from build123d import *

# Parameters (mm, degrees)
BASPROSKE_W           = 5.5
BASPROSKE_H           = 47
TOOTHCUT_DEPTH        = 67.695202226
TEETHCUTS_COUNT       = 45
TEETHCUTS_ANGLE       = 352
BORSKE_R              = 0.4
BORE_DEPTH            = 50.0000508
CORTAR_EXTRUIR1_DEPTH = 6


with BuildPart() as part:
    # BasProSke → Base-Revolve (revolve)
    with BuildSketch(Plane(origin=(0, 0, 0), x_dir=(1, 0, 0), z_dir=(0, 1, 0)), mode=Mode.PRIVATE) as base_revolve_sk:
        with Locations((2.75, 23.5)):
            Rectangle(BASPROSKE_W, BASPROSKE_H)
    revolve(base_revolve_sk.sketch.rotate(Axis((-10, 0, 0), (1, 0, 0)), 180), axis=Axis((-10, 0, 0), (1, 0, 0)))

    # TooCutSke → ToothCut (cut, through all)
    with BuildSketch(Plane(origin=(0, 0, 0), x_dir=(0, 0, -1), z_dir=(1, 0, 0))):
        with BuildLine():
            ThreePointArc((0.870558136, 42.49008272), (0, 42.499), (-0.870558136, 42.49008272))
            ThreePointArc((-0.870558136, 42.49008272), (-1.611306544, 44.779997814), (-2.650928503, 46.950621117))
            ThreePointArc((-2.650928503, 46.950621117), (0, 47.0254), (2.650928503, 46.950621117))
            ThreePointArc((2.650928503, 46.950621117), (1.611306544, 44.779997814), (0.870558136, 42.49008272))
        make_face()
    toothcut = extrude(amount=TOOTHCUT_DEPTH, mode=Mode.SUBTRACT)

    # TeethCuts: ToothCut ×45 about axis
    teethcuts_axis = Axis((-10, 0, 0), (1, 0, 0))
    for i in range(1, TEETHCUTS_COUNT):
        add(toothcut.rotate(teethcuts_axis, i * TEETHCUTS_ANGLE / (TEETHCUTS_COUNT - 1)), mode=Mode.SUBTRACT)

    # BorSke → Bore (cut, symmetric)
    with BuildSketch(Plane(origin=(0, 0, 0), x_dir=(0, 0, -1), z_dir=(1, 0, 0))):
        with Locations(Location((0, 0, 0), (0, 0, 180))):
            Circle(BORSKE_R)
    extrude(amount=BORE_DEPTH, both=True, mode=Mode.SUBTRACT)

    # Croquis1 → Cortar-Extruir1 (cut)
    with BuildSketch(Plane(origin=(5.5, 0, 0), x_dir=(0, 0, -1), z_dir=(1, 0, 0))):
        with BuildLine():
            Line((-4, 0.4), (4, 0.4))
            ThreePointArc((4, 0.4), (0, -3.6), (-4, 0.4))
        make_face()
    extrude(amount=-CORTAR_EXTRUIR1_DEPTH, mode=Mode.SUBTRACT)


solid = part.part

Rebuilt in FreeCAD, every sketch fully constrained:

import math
import FreeCAD as App
import Part
import Sketcher

V = App.Vector
Q = App.Units.Quantity


def add_polygon(sketch, points):
    """Adds a closed chain of lines whose ends are joined by coincident constraints."""
    first, n = sketch.GeometryCount, len(points)
    for a, b in zip(points, points[1:] + points[:1]):
        sketch.addGeometry(Part.LineSegment(App.Vector(*a, 0), App.Vector(*b, 0)), False)
    for i in range(n):
        sketch.addConstraint(Sketcher.Constraint("Coincident", first + i, 2, first + (i + 1) % n, 1))

doc = App.newDocument("Part")
body = doc.addObject("PartDesign::Body", "Body")

# Sketch on XZ plane
sketch1 = body.newObject("Sketcher::SketchObject", "Sketch")
sketch1.AttachmentSupport = (doc.getObject("XZ_Plane"), [""])
sketch1.MapMode = "FlatFace"
add_polygon(sketch1, [(0, -47), (0, 0), (5.5, 0), (5.5, -47)])  # lines 0-3
sketch1.addConstraint(Sketcher.Constraint("Vertical", 0))
sketch1.addConstraint(Sketcher.Constraint("Horizontal", 1))
sketch1.addConstraint(Sketcher.Constraint("Vertical", 2))
sketch1.addConstraint(Sketcher.Constraint("Horizontal", 3))
sketch1.addConstraint(Sketcher.Constraint("Coincident", 0, 2, -1, 1))
sketch1.addConstraint(Sketcher.Constraint("DistanceY", 0, 1, 0, 2, Q("47 mm")))
sketch1.addConstraint(Sketcher.Constraint("DistanceX", 1, 1, 1, 2, Q("5.5 mm")))
revolution = body.newObject("PartDesign::Revolution", "Revolution")
revolution.Profile = sketch1
revolution.ReferenceAxis = (sketch1, ["H_Axis"])
revolution.Angle = 360

# Sketch on YZ plane
sketch2 = body.newObject("Sketcher::SketchObject", "Sketch001")
sketch2.AttachmentSupport = (doc.getObject("YZ_Plane"), [""])
sketch2.MapMode = "FlatFace"
sketch2.addGeometry(Part.ArcOfCircle(Part.Circle(V(-0.000001, 0, 0), V(0, 0, 1), 42.499001), math.radians(-1.17374), math.radians(1.17374)), False)
sketch2.addGeometry(Part.ArcOfCircle(Part.Circle(V(38.10739, -18.328852, 0), V(0, 0, 1), 18), math.radians(60.574556), math.radians(75.907804)), False)
sketch2.addGeometry(Part.ArcOfCircle(Part.Circle(V(0, 0, 0), V(0, 0, 1), 47.0254), math.radians(-3.231606), math.radians(3.231606)), False)
sketch2.addGeometry(Part.ArcOfCircle(Part.Circle(V(38.10739, 18.328852, 0), V(0, 0, 1), 18), math.radians(-75.907804), math.radians(-60.574556)), False)
sketch2.addConstraint(Sketcher.Constraint("Coincident", 0, 1, 1, 2))
sketch2.addConstraint(Sketcher.Constraint("Coincident", 1, 1, 2, 1))
sketch2.addConstraint(Sketcher.Constraint("Coincident", 2, 2, 3, 2))
sketch2.addConstraint(Sketcher.Constraint("Coincident", 3, 1, 0, 2))
sketch2.addConstraint(Sketcher.Constraint("Coincident", 0, 3, -1, 1))
sketch2.addConstraint(Sketcher.Constraint("Coincident", 2, 3, -1, 1))
sketch2.addConstraint(Sketcher.Constraint("Equal", 1, 3))
sketch2.addConstraint(Sketcher.Constraint("Symmetric", 1, 3, 3, 3, -1))
sketch2.addConstraint(Sketcher.Constraint("Radius", 1, Q("18 mm")))
sketch2.addConstraint(Sketcher.Constraint("Radius", 0, Q("42.499001 mm")))
sketch2.addConstraint(Sketcher.Constraint("Radius", 2, Q("47.0254 mm")))
sketch2.addConstraint(Sketcher.Constraint("DistanceX", -1, 1, 1, 3, Q("38.10739 mm")))
sketch2.addConstraint(Sketcher.Constraint("DistanceY", 1, 3, -1, 1, Q("18.328852 mm")))
pocket1 = body.newObject("PartDesign::Pocket", "Pocket")
pocket1.Profile = sketch2
pocket1.Type = "ThroughAll"
pocket1.Reversed = True
doc.recompute()

polarpattern = body.newObject("PartDesign::PolarPattern", "PolarPattern")
polarpattern.Originals = [pocket1]
polarpattern.Axis = (doc.getObject("X_Axis"), [""])
polarpattern.Angle = 360
polarpattern.Occurrences = 45
body.Tip = polarpattern

# Sketch on YZ plane
sketch3 = body.newObject("Sketcher::SketchObject", "Sketch002")
sketch3.AttachmentSupport = (doc.getObject("YZ_Plane"), [""])
sketch3.MapMode = "FlatFace"
sketch3.addGeometry(Part.Circle(V(0, 0, 0), V(0, 0, 1), 0.4), False)
sketch3.addConstraint(Sketcher.Constraint("Coincident", 0, 3, -1, 1))
sketch3.addConstraint(Sketcher.Constraint("Diameter", 0, Q("0.8 mm")))
pocket2 = body.newObject("PartDesign::Pocket", "Pocket001")
pocket2.Profile = sketch3
pocket2.Length = 100.000102
pocket2.Midplane = True

# Sketch on YZ plane
sketch4 = body.newObject("Sketcher::SketchObject", "Sketch003")
sketch4.AttachmentSupport = (doc.getObject("YZ_Plane"), [""])
sketch4.MapMode = "FlatFace"
sketch4.AttachmentOffset = App.Placement(V(0, 0, 5.5), App.Rotation())
sketch4.addGeometry(Part.LineSegment(V(0.4, -4, 0), V(0.4, 4, 0)), False)
sketch4.addGeometry(Part.ArcOfCircle(Part.Circle(V(0.4, 0, 0), V(0, 0, 1), 4), math.radians(90), math.radians(270)), False)
sketch4.addConstraint(Sketcher.Constraint("Coincident", 0, 1, 1, 2))
sketch4.addConstraint(Sketcher.Constraint("Coincident", 1, 1, 0, 2))
sketch4.addConstraint(Sketcher.Constraint("Vertical", 0))
sketch4.addConstraint(Sketcher.Constraint("PointOnObject", 1, 3, -1))
sketch4.addConstraint(Sketcher.Constraint("Vertical", 1, 3, 0, 1))
sketch4.addConstraint(Sketcher.Constraint("Radius", 1, Q("4 mm")))
sketch4.addConstraint(Sketcher.Constraint("DistanceX", -1, 1, 1, 3, Q("0.4 mm")))
pocket3 = body.newObject("PartDesign::Pocket", "Pocket002")
pocket3.Profile = sketch4
pocket3.Length = 6

doc.recompute()
